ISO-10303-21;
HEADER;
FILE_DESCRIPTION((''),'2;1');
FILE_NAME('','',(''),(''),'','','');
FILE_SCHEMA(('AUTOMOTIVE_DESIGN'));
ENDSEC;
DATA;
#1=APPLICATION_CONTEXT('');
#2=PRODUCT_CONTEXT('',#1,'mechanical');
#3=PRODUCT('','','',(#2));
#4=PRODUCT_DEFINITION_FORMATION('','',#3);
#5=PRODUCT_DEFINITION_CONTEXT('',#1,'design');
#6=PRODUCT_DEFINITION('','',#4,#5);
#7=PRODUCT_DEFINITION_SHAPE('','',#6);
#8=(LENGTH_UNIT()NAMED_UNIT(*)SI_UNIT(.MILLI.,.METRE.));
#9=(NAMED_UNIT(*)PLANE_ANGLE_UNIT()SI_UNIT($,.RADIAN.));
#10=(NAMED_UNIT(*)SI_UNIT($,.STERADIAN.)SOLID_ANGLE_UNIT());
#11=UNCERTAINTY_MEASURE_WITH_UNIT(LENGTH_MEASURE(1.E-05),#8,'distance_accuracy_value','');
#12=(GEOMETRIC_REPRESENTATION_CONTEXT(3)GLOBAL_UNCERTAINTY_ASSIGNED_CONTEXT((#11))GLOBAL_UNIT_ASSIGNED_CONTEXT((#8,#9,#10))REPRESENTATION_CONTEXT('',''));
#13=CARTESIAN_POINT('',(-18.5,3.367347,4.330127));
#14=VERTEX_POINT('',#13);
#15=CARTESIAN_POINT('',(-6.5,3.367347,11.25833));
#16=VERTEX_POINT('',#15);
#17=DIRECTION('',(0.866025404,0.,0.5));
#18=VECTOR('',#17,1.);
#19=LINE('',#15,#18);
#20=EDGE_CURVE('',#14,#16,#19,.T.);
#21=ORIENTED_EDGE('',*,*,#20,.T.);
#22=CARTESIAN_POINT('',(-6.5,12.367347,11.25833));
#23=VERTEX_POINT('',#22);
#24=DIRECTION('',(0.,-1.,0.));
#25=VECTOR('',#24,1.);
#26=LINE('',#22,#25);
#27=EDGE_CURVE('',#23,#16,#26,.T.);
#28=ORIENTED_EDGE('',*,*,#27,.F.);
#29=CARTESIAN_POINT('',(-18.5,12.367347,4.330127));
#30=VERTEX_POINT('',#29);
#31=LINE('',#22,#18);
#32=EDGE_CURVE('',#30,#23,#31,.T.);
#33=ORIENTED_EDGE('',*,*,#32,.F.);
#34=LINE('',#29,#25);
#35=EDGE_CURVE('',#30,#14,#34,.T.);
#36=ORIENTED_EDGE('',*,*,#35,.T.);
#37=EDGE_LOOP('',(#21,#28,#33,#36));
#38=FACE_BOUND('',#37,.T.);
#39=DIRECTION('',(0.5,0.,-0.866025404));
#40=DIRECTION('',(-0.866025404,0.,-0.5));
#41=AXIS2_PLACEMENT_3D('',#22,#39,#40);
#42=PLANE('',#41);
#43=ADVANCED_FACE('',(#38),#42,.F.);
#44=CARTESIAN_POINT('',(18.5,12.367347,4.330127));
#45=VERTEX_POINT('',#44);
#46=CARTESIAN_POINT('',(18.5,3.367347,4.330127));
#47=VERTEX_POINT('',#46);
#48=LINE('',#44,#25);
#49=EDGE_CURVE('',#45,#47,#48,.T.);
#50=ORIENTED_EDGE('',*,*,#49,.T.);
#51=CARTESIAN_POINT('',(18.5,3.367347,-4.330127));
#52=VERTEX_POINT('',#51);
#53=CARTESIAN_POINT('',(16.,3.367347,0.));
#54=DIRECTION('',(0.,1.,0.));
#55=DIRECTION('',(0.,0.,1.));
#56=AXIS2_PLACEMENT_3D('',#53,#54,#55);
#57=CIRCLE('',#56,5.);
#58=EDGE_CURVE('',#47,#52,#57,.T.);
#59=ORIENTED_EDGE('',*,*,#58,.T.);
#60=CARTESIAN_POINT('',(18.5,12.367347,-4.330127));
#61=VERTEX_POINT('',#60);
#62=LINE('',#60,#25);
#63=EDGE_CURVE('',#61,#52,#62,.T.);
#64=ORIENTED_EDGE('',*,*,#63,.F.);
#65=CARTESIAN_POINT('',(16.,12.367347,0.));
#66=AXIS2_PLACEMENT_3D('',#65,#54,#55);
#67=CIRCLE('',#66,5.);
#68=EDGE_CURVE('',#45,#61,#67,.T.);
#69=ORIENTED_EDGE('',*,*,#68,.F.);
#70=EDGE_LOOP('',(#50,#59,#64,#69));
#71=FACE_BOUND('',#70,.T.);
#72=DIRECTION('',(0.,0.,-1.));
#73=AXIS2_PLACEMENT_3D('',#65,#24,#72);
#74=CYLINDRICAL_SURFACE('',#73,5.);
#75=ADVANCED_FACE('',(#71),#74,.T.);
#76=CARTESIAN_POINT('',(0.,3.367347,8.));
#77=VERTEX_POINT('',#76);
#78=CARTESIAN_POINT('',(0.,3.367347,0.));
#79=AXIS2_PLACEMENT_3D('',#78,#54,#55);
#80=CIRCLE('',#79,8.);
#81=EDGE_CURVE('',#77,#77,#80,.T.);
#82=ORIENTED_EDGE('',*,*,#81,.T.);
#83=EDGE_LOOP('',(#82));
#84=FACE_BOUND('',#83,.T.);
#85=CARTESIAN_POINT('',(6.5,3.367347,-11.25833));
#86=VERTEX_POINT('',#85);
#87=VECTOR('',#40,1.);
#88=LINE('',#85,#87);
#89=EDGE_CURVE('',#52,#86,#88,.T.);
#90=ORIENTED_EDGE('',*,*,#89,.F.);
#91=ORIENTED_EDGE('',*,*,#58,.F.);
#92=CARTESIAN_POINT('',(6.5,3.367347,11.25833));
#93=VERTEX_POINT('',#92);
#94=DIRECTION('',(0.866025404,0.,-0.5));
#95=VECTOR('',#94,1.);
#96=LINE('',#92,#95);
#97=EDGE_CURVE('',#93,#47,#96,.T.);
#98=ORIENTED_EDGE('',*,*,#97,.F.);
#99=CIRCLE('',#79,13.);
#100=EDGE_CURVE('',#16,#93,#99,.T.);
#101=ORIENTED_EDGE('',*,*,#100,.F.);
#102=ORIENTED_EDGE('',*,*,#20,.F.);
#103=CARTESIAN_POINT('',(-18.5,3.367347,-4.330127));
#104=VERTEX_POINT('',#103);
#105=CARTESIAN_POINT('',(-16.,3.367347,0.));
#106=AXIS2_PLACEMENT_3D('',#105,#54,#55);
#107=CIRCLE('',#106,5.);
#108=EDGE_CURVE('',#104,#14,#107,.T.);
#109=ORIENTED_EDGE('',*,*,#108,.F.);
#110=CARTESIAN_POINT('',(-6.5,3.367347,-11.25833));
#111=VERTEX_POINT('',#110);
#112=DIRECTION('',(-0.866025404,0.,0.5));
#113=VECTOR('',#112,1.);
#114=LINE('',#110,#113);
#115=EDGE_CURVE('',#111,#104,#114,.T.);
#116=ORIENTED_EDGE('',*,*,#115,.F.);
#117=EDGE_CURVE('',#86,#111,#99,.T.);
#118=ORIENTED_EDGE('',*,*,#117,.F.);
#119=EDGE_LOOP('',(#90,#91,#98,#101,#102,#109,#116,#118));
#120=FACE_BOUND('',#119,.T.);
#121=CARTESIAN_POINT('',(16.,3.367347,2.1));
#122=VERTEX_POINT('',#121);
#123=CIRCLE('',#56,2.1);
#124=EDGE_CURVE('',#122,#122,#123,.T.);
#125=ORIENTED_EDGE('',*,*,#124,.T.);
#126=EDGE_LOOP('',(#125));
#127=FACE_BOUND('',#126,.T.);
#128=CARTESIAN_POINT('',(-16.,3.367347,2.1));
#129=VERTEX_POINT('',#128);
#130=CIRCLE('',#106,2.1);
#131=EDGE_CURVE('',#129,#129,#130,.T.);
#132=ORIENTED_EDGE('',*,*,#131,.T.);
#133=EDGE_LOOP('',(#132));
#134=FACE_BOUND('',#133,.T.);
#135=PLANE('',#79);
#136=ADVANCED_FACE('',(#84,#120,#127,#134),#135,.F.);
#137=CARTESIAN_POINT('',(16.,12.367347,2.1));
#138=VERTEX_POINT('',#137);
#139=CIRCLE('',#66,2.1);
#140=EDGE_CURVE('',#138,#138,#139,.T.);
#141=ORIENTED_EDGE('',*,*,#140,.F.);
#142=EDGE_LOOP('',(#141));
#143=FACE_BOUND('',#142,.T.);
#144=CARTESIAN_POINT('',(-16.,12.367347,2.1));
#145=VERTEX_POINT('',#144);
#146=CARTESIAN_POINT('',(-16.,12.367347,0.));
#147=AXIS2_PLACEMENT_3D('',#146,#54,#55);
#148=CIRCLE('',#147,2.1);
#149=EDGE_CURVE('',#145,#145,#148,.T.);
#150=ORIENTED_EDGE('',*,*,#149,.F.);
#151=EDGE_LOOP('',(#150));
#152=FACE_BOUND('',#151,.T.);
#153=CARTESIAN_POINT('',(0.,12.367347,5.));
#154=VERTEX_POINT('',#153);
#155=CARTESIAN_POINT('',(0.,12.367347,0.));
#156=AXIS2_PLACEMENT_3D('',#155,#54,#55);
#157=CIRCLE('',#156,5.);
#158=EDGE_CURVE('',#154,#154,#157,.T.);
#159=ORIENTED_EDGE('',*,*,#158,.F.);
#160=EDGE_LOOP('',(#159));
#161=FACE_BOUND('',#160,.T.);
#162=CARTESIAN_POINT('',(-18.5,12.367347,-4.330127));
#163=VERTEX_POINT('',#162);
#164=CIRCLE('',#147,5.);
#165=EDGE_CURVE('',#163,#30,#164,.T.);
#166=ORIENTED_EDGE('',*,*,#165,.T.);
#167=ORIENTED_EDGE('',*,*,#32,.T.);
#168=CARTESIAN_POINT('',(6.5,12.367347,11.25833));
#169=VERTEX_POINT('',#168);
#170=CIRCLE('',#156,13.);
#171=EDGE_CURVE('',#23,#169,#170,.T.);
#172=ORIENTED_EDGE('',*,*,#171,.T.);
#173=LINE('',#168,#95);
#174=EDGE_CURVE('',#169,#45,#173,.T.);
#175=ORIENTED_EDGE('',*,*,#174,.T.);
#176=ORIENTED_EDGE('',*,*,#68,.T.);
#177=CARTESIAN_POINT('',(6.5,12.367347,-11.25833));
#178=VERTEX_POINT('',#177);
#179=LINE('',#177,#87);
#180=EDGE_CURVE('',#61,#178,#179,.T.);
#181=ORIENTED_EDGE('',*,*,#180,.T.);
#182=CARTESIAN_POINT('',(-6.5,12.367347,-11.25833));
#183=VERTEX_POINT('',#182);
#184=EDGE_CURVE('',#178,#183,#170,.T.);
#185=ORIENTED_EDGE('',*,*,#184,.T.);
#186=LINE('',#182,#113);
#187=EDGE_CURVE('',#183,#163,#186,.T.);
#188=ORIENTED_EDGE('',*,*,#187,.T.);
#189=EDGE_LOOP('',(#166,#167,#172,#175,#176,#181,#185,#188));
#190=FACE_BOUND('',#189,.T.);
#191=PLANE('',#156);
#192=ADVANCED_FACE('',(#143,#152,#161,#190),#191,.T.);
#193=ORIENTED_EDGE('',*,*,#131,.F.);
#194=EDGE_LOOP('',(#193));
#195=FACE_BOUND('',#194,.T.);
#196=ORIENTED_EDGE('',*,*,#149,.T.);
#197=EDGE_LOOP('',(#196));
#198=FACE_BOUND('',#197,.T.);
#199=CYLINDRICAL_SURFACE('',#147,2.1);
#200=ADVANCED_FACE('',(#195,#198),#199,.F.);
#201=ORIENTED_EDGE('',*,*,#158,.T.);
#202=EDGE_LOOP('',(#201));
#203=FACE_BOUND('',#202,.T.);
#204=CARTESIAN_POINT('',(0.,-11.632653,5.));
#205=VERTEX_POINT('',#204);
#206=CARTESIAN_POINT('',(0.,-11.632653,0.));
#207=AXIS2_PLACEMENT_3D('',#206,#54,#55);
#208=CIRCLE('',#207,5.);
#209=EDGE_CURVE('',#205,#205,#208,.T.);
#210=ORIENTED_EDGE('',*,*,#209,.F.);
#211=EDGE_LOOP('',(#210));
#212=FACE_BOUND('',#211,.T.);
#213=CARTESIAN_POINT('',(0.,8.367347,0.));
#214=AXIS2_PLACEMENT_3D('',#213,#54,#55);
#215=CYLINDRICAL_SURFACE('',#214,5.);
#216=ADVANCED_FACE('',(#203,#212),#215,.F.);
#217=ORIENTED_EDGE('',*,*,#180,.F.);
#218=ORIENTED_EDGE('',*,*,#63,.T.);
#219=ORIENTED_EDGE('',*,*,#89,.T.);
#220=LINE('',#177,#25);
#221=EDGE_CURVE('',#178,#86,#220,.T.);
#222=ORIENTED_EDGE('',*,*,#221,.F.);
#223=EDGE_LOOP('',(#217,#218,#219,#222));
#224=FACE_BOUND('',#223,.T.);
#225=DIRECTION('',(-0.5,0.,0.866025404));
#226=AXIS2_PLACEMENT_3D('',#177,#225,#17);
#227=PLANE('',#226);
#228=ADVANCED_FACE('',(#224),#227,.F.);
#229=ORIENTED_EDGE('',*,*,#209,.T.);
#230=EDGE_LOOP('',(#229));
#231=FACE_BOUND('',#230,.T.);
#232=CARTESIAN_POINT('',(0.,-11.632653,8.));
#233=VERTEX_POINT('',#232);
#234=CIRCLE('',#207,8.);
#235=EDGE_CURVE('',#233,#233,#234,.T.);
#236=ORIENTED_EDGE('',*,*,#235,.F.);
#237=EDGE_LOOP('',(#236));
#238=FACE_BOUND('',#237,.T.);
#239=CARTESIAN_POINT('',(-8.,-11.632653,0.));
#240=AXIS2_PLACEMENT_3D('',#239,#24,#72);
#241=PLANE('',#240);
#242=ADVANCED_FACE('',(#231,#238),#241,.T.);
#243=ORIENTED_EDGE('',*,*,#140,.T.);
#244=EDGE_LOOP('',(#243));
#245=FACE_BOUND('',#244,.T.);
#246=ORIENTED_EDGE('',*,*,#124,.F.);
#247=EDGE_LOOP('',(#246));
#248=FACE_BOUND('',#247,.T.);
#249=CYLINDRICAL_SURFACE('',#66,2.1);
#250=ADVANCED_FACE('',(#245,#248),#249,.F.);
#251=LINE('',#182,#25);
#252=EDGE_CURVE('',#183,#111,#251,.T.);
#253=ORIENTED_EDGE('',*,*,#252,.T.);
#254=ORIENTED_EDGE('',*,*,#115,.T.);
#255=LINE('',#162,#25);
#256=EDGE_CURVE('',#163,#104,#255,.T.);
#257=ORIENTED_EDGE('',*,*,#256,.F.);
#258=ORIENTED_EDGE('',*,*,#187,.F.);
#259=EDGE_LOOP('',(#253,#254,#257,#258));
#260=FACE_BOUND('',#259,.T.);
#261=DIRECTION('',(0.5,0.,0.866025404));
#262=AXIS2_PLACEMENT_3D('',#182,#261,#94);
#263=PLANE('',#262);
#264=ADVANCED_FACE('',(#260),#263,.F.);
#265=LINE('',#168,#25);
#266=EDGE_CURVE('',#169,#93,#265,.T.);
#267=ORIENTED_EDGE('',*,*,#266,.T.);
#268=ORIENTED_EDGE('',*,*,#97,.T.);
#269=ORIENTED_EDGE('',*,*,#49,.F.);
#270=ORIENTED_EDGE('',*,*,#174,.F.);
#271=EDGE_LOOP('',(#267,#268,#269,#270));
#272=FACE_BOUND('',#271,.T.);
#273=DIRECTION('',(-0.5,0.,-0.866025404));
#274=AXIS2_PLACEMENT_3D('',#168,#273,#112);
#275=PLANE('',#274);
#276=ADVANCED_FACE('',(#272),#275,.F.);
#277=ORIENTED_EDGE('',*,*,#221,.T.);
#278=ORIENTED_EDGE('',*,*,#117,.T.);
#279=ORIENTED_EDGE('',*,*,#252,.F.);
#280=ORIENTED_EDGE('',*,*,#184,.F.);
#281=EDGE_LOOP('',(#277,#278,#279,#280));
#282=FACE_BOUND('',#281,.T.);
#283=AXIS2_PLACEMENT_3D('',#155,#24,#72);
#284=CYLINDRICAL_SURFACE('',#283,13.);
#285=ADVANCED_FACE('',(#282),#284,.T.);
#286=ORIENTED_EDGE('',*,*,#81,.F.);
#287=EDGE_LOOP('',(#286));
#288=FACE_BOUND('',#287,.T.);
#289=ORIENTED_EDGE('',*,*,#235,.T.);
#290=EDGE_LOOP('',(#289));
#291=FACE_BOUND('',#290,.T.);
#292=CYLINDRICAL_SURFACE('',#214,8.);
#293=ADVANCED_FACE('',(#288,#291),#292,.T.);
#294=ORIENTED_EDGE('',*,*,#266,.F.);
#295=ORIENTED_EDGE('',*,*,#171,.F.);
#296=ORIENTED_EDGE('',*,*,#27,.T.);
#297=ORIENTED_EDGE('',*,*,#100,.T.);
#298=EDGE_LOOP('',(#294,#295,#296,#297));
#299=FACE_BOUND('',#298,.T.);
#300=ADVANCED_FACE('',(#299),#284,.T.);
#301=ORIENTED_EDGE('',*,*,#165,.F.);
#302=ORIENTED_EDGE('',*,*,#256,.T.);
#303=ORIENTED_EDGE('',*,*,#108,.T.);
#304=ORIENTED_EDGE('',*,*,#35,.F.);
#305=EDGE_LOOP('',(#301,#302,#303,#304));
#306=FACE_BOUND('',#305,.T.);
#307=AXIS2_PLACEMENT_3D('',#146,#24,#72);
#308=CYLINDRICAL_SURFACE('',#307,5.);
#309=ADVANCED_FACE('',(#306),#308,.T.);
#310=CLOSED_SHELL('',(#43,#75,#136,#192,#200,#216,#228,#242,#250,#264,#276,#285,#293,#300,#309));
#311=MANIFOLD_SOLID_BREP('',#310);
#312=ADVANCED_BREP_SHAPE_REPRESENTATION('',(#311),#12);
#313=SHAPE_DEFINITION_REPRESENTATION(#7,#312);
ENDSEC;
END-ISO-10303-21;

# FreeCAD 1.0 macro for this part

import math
import FreeCAD as App
import Part
import Sketcher
from FreeCAD import Vector
Q = App.Units.Quantity


def add_polygon(sketch, points):
    """Adds a closed chain of lines whose ends are joined by coincident constraints."""
    first, n = sketch.GeometryCount, len(points)
    for a, b in zip(points, points[1:] + points[:1]):
        sketch.addGeometry(Part.LineSegment(App.Vector(*a, 0), App.Vector(*b, 0)), False)
    for i in range(n):
        sketch.addConstraint(Sketcher.Constraint("Coincident", first + i, 2, first + (i + 1) % n, 1))

doc = App.newDocument("Part")
body = doc.addObject("PartDesign::Body", "Body")

sketch1 = doc.addObject("Sketcher::SketchObject", "Sketch")
body.addObject(sketch1)
sketch1.AttachmentSupport = (doc.XY_Plane, [""])
sketch1.MapMode = "FlatFace"
add_polygon(sketch1, [(-8, 3.4), (-8, -11.6), (-5, -11.6), (-5, 3.4)])
sketch1.addConstraint([
    Sketcher.Constraint("Vertical", 0),
    Sketcher.Constraint("Horizontal", 1),
    Sketcher.Constraint("Vertical", 2),
    Sketcher.Constraint("Horizontal", 3),
    Sketcher.Constraint("DistanceX", 1, 1, 1, 2, 3.0),
    Sketcher.Constraint("DistanceY", 0, 2, 0, 1, 15.0),
    Sketcher.Constraint("DistanceX", 0, 2, -1, 1, 8.0),
    Sketcher.Constraint("DistanceY", 0, 2, -1, 1, 11.632653),
])
revolution = doc.addObject("PartDesign::Revolution", "Revolution")
body.addObject(revolution)
revolution.Profile = sketch1
revolution.ReferenceAxis = (sketch1, ["V_Axis"])
revolution.Angle = 360

sketch2 = doc.addObject("Sketcher::SketchObject", "Sketch001")
body.addObject(sketch2)
sketch2.AttachmentSupport = (doc.XZ_Plane, [""])
sketch2.MapMode = "FlatFace"
sketch2.AttachmentOffset = App.Placement(Vector(0, 0, -12.367347), App.Rotation())
sketch2.addGeometry([
    Part.LineSegment(Vector(-6, -11, 0), Vector(-18, -4, 0)),
    Part.ArcOfCircle(Part.Circle(Vector(-16, 0, 0), Vector(0, 0, 1), 5), math.radians(120), math.radians(240)),
    Part.LineSegment(Vector(-18, 4, 0), Vector(-6, 11, 0)),
    Part.ArcOfCircle(Part.Circle(Vector(0, 0, 0), Vector(0, 0, 1), 13), math.radians(60), math.radians(120)),
    Part.LineSegment(Vector(6, 11, 0), Vector(18, 4, 0)),
    Part.ArcOfCircle(Part.Circle(Vector(16, 0, 0), Vector(0, 0, 1), 5), math.radians(-60), math.radians(60)),
    Part.LineSegment(Vector(18, -4, 0), Vector(6, -11, 0)),
    Part.ArcOfCircle(Part.Circle(Vector(0, 0, 0), Vector(0, 0, 1), 13), math.radians(-120), math.radians(-60)),
    Part.Circle(Vector(0, 0, 0), Vector(0, 0, 1), 5),
], False)
sketch2.addConstraint([
    Sketcher.Constraint("Tangent", 0, 2, 1, 2),
    Sketcher.Constraint("Tangent", 1, 1, 2, 1),
    Sketcher.Constraint("Tangent", 2, 2, 3, 2),
    Sketcher.Constraint("Tangent", 3, 1, 4, 1),
    Sketcher.Constraint("Tangent", 4, 2, 5, 2),
    Sketcher.Constraint("Tangent", 5, 1, 6, 1),
    Sketcher.Constraint("Tangent", 6, 2, 7, 2),
    Sketcher.Constraint("Tangent", 7, 1, 0, 1),
    Sketcher.Constraint("Coincident", 3, 3, -1, 1),
    Sketcher.Constraint("Coincident", 7, 3, -1, 1),
    Sketcher.Constraint("Coincident", 8, 3, -1, 1),
    Sketcher.Constraint("Equal", 1, 5),
    Sketcher.Constraint("Equal", 3, 7),
    Sketcher.Constraint("Equal", 5, 8),
    Sketcher.Constraint("Symmetric", 1, 3, 5, 3, -1, 1),
    Sketcher.Constraint("PointOnObject", 1, 3, -1),
    Sketcher.Constraint("Diameter", 8, 10.0),
    Sketcher.Constraint("Radius", 3, 13.0),
    Sketcher.Constraint("Angle", 0, Q("150 deg")),
])
pad1 = doc.addObject("PartDesign::Pad", "Pad")
body.addObject(pad1)
pad1.Profile = sketch2
pad1.Length = 9

sketch3 = doc.addObject("Sketcher::SketchObject", "Sketch002")
body.addObject(sketch3)
sketch3.AttachmentSupport = (doc.XZ_Plane, [""])
sketch3.MapMode = "FlatFace"
sketch3.AttachmentOffset = App.Placement(Vector(0, 0, -12.367347), App.Rotation())
sketch3.addGeometry([
    Part.Circle(Vector(-16, 0, 0), Vector(0, 0, 1), 2.1),
    Part.Circle(Vector(16, 0, 0), Vector(0, 0, 1), 2.1),
], False)
sketch3.addConstraint([
    Sketcher.Constraint("Equal", 0, 1),
    Sketcher.Constraint("Symmetric", 0, 3, 1, 3, -1, 1),
    Sketcher.Constraint("PointOnObject", 0, 3, -1),
    Sketcher.Constraint("Diameter", 0, 4.2),
    Sketcher.Constraint("DistanceX", 0, 3, -1, 1, 16.0),
])
doc.recompute()
hole = doc.addObject("PartDesign::Hole", "Hole")
body.addObject(hole)
hole.Profile = sketch3
hole.ThreadType = "None"
hole.Diameter = 4.2
hole.DepthType = "Dimension"
hole.Depth = 12.4
hole.DrillPoint = "Angled"
hole.DrillPointAngle = 118
hole.Reversed = True

doc.recompute()
